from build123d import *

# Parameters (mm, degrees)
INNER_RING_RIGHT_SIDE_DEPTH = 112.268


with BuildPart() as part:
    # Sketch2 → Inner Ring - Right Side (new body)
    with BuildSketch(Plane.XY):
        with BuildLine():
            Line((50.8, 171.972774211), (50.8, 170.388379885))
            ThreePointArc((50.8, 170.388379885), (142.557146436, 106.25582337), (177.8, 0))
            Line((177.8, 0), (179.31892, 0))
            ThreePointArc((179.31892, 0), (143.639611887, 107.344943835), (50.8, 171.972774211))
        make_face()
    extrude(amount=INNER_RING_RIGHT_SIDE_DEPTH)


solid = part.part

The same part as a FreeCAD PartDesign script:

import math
import FreeCAD as App
import Part
import Sketcher
Q = App.Units.Quantity

doc = App.newDocument("Part")
body = doc.addObject("PartDesign::Body", "Body")

# Sketch on XY plane
sketch1 = body.newObject("Sketcher::SketchObject", "Sketch")
sketch1.AttachmentSupport = (doc.getObject("XY_Plane"), [""])
sketch1.MapMode = "FlatFace"
sketch1.addGeometry(Part.LineSegment(App.Vector(50.8, 172, 0), App.Vector(50.8, 170.4, 0)), False)
sketch1.addGeometry(Part.ArcOfCircle(Part.Circle(App.Vector(0, 0, 0), App.Vector(0, 0, 1), 177.8), math.radians(0), math.radians(73)), False)
sketch1.addGeometry(Part.LineSegment(App.Vector(177.8, 0, 0), App.Vector(179.3, 0, 0)), False)
sketch1.addGeometry(Part.ArcOfCircle(Part.Circle(App.Vector(0, 0, 0), App.Vector(0, 0, 1), 179.3), math.radians(0), math.radians(74)), False)
sketch1.addConstraint(Sketcher.Constraint("Coincident", 0, 2, 1, 2))
sketch1.addConstraint(Sketcher.Constraint("Coincident", 1, 1, 2, 1))
sketch1.addConstraint(Sketcher.Constraint("Coincident", 2, 2, 3, 1))
sketch1.addConstraint(Sketcher.Constraint("Coincident", 3, 2, 0, 1))
sketch1.addConstraint(Sketcher.Constraint("Vertical", 0))
sketch1.addConstraint(Sketcher.Constraint("Horizontal", 2))
sketch1.addConstraint(Sketcher.Constraint("Coincident", 1, 3, -1, 1))
sketch1.addConstraint(Sketcher.Constraint("Coincident", 3, 3, -1, 1))
sketch1.addConstraint(Sketcher.Constraint("PointOnObject", 1, 1, -1))
sketch1.addConstraint(Sketcher.Constraint("Radius", 1, Q("7 in")))
sketch1.addConstraint(Sketcher.Constraint("DistanceX", -1, 1, 0, 2, Q("2 in")))
sketch1.addConstraint(Sketcher.Constraint("Radius", 3, Q("7.0598 in")))
pad1 = body.newObject("PartDesign::Pad", "Pad")
pad1.Profile = sketch1
pad1.Length = Q("4.42 in")

doc.recompute()
